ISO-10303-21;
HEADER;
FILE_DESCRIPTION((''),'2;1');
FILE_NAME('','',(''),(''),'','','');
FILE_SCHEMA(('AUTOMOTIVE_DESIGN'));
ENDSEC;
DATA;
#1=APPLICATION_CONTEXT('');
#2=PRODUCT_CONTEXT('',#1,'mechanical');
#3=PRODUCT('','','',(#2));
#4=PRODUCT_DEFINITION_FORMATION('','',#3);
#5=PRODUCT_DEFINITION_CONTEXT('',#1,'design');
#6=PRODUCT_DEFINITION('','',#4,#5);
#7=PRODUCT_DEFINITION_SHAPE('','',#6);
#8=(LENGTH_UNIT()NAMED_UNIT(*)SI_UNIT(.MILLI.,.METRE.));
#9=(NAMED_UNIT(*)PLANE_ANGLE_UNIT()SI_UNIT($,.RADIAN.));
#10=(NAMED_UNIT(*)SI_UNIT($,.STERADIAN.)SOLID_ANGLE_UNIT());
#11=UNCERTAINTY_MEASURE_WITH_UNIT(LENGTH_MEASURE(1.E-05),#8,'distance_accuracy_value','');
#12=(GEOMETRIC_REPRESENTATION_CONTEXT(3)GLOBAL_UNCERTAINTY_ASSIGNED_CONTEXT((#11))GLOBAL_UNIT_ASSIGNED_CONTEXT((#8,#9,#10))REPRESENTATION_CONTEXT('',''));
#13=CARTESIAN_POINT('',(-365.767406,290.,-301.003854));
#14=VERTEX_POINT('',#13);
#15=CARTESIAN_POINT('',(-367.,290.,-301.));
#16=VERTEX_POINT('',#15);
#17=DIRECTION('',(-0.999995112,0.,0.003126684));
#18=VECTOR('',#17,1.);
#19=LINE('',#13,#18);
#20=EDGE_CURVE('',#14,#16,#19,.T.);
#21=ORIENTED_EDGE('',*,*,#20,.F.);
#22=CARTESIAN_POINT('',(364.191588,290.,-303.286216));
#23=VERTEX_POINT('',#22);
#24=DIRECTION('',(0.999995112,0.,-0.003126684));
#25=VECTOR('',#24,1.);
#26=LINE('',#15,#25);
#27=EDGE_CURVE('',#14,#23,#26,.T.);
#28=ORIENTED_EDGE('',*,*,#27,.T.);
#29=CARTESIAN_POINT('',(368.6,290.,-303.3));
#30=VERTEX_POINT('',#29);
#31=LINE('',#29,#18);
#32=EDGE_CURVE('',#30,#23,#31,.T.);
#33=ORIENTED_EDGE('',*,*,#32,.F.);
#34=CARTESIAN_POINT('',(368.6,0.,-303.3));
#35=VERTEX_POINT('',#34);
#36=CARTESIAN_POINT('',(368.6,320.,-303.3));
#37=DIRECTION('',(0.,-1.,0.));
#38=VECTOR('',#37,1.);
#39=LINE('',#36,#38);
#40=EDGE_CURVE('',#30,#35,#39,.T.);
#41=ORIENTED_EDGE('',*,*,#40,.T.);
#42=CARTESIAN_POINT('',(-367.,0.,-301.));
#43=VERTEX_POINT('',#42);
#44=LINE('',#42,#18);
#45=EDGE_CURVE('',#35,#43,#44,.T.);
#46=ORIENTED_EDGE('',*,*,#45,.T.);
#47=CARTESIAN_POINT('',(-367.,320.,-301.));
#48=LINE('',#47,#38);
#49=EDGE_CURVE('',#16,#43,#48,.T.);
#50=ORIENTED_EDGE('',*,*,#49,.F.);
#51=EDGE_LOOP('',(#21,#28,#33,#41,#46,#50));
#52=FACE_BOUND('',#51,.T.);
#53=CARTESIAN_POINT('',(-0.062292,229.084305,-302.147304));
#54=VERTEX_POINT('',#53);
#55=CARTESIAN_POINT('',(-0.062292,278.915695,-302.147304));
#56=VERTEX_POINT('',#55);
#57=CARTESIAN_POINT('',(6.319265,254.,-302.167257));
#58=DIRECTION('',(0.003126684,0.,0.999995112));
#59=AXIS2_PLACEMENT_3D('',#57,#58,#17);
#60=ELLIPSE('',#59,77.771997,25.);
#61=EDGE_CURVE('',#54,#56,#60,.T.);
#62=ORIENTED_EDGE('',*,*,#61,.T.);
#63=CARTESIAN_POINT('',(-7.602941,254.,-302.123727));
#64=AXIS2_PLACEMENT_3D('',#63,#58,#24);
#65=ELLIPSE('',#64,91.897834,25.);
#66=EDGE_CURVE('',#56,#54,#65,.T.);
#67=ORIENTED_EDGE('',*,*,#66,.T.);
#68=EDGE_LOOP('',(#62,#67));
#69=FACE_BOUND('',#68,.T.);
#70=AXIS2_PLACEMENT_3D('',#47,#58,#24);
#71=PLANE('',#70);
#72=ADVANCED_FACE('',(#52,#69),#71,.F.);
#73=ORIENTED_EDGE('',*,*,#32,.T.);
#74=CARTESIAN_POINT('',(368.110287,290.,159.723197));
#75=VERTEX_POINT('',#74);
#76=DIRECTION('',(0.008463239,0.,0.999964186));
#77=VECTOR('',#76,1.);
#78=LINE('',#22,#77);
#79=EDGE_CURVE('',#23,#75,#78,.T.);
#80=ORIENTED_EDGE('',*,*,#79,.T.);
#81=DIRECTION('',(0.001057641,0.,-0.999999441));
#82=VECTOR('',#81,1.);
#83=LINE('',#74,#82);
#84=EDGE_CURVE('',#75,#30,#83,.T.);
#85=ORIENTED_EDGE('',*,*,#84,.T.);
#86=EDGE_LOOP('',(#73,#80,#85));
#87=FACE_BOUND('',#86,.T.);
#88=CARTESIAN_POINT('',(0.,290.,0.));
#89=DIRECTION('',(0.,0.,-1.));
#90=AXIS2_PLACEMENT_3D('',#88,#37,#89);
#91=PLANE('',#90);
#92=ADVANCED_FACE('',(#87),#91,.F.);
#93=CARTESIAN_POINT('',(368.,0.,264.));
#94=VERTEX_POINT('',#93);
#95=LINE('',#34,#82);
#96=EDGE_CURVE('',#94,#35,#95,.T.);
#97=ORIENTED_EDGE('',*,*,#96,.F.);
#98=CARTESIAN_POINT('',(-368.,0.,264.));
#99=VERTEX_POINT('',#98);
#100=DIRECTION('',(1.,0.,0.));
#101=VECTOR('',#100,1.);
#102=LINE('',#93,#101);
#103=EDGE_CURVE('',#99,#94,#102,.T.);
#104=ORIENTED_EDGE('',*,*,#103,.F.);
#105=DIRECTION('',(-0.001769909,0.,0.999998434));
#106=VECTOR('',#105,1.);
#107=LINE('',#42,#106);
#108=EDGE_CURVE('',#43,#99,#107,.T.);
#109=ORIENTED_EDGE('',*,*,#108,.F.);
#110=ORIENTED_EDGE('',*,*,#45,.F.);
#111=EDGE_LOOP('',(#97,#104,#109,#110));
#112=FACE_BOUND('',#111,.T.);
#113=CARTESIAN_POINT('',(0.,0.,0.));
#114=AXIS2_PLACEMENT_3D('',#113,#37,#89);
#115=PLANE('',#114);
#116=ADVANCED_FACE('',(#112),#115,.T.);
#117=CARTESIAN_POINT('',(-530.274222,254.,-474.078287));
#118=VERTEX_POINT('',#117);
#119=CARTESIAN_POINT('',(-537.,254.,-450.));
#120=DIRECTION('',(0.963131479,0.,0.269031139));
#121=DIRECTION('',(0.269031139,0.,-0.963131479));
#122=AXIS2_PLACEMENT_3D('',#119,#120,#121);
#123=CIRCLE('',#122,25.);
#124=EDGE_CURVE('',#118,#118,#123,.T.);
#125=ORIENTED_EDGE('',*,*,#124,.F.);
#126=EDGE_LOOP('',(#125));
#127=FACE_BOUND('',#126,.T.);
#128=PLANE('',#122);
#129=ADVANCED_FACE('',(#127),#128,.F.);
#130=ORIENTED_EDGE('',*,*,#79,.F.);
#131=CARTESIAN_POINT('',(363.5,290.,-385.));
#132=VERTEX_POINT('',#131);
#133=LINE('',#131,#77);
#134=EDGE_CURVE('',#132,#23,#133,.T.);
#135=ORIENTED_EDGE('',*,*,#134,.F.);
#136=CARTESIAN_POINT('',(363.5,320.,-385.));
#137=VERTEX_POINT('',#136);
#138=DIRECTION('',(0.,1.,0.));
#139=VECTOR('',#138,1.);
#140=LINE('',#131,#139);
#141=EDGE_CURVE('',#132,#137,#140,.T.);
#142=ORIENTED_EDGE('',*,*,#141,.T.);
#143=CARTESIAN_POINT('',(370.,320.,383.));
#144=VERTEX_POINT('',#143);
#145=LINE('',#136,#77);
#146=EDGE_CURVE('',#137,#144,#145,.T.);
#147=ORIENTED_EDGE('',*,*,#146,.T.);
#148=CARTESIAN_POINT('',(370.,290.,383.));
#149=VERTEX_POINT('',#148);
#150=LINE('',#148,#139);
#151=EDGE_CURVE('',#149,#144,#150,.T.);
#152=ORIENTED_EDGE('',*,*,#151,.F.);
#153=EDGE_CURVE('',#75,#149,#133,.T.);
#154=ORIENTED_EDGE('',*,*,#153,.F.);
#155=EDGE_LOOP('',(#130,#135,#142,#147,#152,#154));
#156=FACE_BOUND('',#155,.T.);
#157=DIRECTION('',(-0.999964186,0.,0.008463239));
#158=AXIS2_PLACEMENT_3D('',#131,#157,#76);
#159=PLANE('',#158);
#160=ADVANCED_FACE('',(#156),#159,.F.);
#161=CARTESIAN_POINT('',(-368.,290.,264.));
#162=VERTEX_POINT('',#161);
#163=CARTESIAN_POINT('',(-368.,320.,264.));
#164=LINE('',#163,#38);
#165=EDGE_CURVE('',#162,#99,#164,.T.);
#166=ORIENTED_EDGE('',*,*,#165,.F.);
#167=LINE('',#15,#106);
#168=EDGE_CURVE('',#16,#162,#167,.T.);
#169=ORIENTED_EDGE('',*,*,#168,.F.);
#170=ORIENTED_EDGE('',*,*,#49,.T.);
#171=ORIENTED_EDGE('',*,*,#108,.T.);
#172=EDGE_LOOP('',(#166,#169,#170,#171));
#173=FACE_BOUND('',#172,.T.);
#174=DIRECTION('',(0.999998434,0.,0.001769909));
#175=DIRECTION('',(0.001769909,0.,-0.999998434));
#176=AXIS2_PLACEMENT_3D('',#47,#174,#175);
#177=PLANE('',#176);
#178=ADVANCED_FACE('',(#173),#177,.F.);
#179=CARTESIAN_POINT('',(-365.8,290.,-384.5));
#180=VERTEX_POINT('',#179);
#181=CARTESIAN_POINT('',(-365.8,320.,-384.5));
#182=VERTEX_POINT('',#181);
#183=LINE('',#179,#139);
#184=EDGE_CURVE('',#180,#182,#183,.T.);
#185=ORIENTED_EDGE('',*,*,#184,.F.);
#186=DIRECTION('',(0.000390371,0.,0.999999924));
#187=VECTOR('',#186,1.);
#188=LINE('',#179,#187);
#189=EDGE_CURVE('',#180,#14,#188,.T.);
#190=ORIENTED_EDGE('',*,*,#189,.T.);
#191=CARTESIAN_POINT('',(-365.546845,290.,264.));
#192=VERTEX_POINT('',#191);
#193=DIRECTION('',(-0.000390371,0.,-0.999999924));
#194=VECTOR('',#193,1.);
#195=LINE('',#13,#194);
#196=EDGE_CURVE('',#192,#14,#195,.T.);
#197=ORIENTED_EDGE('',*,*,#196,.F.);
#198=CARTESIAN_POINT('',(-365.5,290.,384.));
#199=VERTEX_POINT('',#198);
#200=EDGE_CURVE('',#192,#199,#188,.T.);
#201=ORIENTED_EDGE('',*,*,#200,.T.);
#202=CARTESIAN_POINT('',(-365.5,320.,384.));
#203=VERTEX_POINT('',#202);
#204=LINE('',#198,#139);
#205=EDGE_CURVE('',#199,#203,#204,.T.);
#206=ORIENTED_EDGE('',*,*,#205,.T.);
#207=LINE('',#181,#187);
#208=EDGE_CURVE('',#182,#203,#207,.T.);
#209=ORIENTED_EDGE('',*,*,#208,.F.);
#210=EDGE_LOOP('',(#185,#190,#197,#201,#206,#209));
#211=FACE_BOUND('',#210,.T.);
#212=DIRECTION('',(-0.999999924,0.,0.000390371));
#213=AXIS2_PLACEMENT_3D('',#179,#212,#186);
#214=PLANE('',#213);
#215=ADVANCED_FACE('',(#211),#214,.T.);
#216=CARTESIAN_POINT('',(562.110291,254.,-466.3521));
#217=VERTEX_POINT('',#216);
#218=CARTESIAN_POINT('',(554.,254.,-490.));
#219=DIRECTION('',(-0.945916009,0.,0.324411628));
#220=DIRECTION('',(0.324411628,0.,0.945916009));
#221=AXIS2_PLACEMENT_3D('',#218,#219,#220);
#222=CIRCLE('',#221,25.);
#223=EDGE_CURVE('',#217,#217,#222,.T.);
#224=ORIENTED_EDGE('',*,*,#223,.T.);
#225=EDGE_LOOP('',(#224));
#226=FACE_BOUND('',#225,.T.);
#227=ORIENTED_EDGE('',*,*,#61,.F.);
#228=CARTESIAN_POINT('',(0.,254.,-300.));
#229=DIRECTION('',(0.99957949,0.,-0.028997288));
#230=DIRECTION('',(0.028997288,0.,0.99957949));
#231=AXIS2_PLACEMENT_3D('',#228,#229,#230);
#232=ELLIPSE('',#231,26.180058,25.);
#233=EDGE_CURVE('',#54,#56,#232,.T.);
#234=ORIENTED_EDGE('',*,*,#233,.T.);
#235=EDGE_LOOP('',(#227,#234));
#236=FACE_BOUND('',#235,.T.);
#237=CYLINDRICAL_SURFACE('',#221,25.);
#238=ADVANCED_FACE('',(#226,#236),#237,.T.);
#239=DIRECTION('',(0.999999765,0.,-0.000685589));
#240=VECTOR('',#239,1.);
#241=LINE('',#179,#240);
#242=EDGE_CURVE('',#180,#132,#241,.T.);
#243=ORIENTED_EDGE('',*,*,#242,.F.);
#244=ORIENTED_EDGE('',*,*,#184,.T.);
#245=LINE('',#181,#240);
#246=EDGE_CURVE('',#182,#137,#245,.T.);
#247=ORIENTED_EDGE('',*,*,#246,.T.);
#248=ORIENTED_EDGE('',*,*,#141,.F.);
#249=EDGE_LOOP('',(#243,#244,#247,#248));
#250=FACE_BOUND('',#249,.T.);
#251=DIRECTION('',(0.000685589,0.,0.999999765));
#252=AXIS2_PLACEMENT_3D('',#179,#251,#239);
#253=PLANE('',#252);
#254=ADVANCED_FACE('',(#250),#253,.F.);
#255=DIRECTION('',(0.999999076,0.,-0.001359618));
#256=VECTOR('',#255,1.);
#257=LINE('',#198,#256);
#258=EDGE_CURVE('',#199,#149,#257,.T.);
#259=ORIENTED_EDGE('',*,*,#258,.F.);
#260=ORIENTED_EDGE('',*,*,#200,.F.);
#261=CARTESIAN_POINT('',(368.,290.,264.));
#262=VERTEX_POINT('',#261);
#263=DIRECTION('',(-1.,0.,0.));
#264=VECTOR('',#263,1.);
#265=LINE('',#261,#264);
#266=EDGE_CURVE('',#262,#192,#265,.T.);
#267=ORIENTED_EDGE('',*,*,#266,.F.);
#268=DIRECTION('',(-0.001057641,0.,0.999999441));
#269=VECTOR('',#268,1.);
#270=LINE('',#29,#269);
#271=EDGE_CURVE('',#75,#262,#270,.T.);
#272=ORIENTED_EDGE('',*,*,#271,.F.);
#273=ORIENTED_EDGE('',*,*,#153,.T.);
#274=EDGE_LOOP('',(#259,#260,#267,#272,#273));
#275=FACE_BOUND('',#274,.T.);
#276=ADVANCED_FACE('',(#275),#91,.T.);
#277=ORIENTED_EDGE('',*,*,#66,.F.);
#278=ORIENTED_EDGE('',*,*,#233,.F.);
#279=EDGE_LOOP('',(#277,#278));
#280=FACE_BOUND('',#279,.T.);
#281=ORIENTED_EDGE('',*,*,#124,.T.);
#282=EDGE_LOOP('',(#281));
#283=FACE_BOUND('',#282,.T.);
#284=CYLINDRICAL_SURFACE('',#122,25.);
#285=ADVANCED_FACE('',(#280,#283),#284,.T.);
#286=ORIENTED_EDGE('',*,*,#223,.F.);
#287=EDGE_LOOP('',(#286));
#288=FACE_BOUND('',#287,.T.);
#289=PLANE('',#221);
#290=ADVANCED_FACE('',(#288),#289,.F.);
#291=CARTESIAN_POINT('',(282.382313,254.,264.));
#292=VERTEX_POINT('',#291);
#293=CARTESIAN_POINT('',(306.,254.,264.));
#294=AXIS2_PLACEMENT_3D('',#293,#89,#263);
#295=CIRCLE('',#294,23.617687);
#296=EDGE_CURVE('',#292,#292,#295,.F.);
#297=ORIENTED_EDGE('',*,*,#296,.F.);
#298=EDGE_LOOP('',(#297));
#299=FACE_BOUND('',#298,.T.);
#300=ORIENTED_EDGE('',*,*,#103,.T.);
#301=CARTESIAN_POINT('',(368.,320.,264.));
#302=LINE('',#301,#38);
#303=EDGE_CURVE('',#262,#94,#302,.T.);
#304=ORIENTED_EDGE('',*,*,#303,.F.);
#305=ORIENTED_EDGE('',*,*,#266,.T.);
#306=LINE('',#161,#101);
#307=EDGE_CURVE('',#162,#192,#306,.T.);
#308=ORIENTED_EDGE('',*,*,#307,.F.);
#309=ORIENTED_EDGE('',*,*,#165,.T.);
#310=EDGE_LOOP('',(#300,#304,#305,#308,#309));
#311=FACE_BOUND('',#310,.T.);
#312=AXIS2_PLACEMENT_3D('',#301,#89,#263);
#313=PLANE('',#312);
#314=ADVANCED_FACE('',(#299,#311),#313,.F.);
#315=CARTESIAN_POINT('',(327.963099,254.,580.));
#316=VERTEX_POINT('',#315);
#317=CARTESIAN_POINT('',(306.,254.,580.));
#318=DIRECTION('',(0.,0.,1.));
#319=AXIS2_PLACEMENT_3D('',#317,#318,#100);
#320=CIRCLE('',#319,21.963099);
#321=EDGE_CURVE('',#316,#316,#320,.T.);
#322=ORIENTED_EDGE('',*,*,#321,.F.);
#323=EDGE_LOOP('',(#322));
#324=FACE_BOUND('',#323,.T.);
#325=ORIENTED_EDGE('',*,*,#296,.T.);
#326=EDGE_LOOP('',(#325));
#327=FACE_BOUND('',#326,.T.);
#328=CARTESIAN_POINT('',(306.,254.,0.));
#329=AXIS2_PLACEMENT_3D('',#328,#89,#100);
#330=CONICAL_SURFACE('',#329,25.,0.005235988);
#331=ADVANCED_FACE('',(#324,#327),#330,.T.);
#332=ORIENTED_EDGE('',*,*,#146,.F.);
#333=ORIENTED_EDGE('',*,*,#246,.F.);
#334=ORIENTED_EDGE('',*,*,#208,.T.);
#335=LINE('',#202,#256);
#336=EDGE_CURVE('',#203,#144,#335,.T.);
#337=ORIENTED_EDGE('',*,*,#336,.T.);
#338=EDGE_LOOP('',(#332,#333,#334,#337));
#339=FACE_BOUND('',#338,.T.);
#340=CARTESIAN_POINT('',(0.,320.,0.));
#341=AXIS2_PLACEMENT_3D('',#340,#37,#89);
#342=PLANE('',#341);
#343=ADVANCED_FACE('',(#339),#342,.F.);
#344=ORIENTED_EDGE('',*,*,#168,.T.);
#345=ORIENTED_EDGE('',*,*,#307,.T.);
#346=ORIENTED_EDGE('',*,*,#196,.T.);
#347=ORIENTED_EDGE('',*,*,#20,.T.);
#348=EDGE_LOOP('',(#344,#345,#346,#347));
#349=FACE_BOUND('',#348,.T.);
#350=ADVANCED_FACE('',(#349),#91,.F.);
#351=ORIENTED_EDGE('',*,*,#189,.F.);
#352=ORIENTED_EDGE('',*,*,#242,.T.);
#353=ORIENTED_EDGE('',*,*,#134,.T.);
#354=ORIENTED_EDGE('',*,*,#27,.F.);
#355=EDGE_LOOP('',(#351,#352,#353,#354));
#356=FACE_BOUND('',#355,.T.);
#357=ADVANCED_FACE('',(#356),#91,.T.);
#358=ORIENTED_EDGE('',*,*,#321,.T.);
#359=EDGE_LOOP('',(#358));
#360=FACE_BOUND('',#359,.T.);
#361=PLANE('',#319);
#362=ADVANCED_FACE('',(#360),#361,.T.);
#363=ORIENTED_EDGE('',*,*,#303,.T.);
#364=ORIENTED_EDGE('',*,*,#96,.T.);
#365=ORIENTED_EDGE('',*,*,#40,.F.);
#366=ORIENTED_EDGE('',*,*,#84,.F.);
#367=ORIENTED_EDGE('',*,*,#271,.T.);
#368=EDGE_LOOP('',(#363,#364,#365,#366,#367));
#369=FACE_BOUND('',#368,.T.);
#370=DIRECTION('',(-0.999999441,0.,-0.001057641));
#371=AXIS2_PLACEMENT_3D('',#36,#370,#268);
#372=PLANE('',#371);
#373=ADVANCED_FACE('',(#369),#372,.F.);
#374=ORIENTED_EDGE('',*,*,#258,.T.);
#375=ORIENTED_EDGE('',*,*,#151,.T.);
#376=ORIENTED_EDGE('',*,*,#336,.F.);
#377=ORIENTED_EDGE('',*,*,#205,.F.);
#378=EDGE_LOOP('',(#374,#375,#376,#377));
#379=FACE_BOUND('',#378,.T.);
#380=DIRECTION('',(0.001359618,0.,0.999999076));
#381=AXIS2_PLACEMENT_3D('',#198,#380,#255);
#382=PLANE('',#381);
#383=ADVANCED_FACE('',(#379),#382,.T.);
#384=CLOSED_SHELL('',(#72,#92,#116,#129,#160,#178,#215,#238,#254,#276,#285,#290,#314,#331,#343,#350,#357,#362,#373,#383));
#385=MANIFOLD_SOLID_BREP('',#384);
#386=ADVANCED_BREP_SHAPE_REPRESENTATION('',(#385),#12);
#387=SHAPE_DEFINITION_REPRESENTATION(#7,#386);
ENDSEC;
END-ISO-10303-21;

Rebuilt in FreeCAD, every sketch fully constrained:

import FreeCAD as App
import Part
import Sketcher
from FreeCAD import Vector
Q = App.Units.Quantity

doc = App.newDocument("Part")
body = doc.addObject("PartDesign::Body", "Body")

sketch1 = body.newObject("Sketcher::SketchObject", "Sketch")
sketch1.AttachmentSupport = (doc.getObject("XZ_Plane"), [""])
sketch1.MapMode = "FlatFace"
sketch1.addGeometry(Part.LineSegment(Vector(-368, 264, 0), Vector(368, 264, 0)), False)
sketch1.addGeometry(Part.LineSegment(Vector(368, 264, 0), Vector(369, -303, 0)), False)
sketch1.addGeometry(Part.LineSegment(Vector(369, -303, 0), Vector(-367, -301, 0)), False)
sketch1.addGeometry(Part.LineSegment(Vector(-367, -301, 0), Vector(-368, 264, 0)), False)
sketch1.addConstraint(Sketcher.Constraint("Coincident", 0, 2, 1, 1))
sketch1.addConstraint(Sketcher.Constraint("Coincident", 1, 2, 2, 1))
sketch1.addConstraint(Sketcher.Constraint("Coincident", 2, 2, 3, 1))
sketch1.addConstraint(Sketcher.Constraint("Coincident", 3, 2, 0, 1))
sketch1.addConstraint(Sketcher.Constraint("Horizontal", 0))
sketch1.addConstraint(Sketcher.Constraint("DistanceX", 0, 1, 0, 2, Q("736 mm")))
sketch1.addConstraint(Sketcher.Constraint("DistanceX", -1, 1, 0, 2, Q("368 mm")))
sketch1.addConstraint(Sketcher.Constraint("DistanceY", -1, 1, 0, 2, Q("264 mm")))
sketch1.addConstraint(Sketcher.Constraint("DistanceX", 2, 2, -1, 1, Q("367 mm")))
sketch1.addConstraint(Sketcher.Constraint("DistanceY", 2, 2, -1, 1, Q("301 mm")))
sketch1.addConstraint(Sketcher.Constraint("DistanceX", -1, 1, 1, 2, Q("368.6 mm")))
sketch1.addConstraint(Sketcher.Constraint("DistanceY", 1, 2, -1, 1, Q("303.3 mm")))
pad1 = body.newObject("PartDesign::Pad", "Pad")
pad1.Profile = sketch1
pad1.Length = 320
pad1.Reversed = True

sketch2 = body.newObject("Sketcher::SketchObject", "Sketch001")
sketch2.AttachmentSupport = (doc.getObject("XZ_Plane"), [""])
sketch2.MapMode = "FlatFace"
sketch2.AttachmentOffset = App.Placement(Vector(0, 0, -320), App.Rotation())
sketch2.addGeometry(Part.LineSegment(Vector(370, 383, 0), Vector(364, -385, 0)), False)
sketch2.addGeometry(Part.LineSegment(Vector(364, -385, 0), Vector(-366, -384, 0)), False)
sketch2.addGeometry(Part.LineSegment(Vector(-366, -384, 0), Vector(-366, 384, 0)), False)
sketch2.addGeometry(Part.LineSegment(Vector(-366, 384, 0), Vector(370, 383, 0)), False)
sketch2.addConstraint(Sketcher.Constraint("Coincident", 0, 2, 1, 1))
sketch2.addConstraint(Sketcher.Constraint("Coincident", 1, 2, 2, 1))
sketch2.addConstraint(Sketcher.Constraint("Coincident", 2, 2, 3, 1))
sketch2.addConstraint(Sketcher.Constraint("Coincident", 3, 2, 0, 1))
sketch2.addConstraint(Sketcher.Constraint("DistanceY", 0, 2, -1, 1, Q("385 mm")))
sketch2.addConstraint(Sketcher.Constraint("DistanceY", -1, 1, 2, 2, Q("384 mm")))
sketch2.addConstraint(Sketcher.Constraint("DistanceX", -1, 1, 3, 2, Q("370 mm")))
sketch2.addConstraint(Sketcher.Constraint("DistanceY", -1, 1, 3, 2, Q("383 mm")))
sketch2.addConstraint(Sketcher.Constraint("DistanceX", 2, 2, 0, 2, Q("729 mm")))
sketch2.addConstraint(Sketcher.Constraint("DistanceX", -1, 1, 0, 2, Q("363.5 mm")))
sketch2.addConstraint(Sketcher.Constraint("DistanceX", 1, 2, -1, 1, Q("365.8 mm")))
sketch2.addConstraint(Sketcher.Constraint("DistanceY", 1, 2, -1, 1, Q("384.5 mm")))
pad2 = body.newObject("PartDesign::Pad", "Pad001")
pad2.Profile = sketch2
pad2.Length = 30

sketch3 = body.newObject("Sketcher::SketchObject", "Sketch002")
sketch3.AttachmentSupport = (doc.getObject("XZ_Plane"), [""])
sketch3.MapMode = "FlatFace"
sketch3.AttachmentOffset = App.Placement(Vector(0, 0, -320), App.Rotation())
sketch3.addGeometry(Part.LineSegment(Vector(364.2, -303.3, 0), Vector(368.1, 159.7, 0)), False)
sketch3.addGeometry(Part.LineSegment(Vector(368.1, 159.7, 0), Vector(368.6, -303.3, 0)), False)
sketch3.addGeometry(Part.LineSegment(Vector(368.6, -303.3, 0), Vector(364.2, -303.3, 0)), False)
sketch3.addGeometry(Part.LineSegment(Vector(-365.5, 264, 0), Vector(-365.8, -301, 0)), False)
sketch3.addGeometry(Part.LineSegment(Vector(-365.8, -301, 0), Vector(-367, -301, 0)), False)
sketch3.addGeometry(Part.LineSegment(Vector(-367, -301, 0), Vector(-368, 264, 0)), False)
sketch3.addGeometry(Part.LineSegment(Vector(-368, 264, 0), Vector(-365.5, 264, 0)), False)
sketch3.addConstraint(Sketcher.Constraint("Coincident", 0, 2, 1, 1))
sketch3.addConstraint(Sketcher.Constraint("Coincident", 1, 2, 2, 1))
sketch3.addConstraint(Sketcher.Constraint("Coincident", 2, 2, 0, 1))
sketch3.addConstraint(Sketcher.Constraint("Coincident", 3, 2, 4, 1))
sketch3.addConstraint(Sketcher.Constraint("Coincident", 4, 2, 5, 1))
sketch3.addConstraint(Sketcher.Constraint("Coincident", 5, 2, 6, 1))
sketch3.addConstraint(Sketcher.Constraint("Coincident", 6, 2, 3, 1))
sketch3.addConstraint(Sketcher.Constraint("Horizontal", 6))
sketch3.addConstraint(Sketcher.Constraint("Parallel", 2, 4))
sketch3.addConstraint(Sketcher.Constraint("DistanceX", 4, 2, -1, 1, Q("367 mm")))
sketch3.addConstraint(Sketcher.Constraint("DistanceY", 4, 2, -1, 1, Q("301 mm")))
sketch3.addConstraint(Sketcher.Constraint("DistanceX", 5, 2, -1, 1, Q("368 mm")))
sketch3.addConstraint(Sketcher.Constraint("DistanceY", -1, 1, 5, 2, Q("264 mm")))
sketch3.addConstraint(Sketcher.Constraint("DistanceX", -1, 1, 1, 2, Q("368.6 mm")))
sketch3.addConstraint(Sketcher.Constraint("DistanceY", 1, 2, -1, 1, Q("303.3 mm")))
sketch3.addConstraint(Sketcher.Constraint("Distance", 4, Q("1.2326 mm")))
sketch3.addConstraint(Sketcher.Constraint("DistanceX", 2, 2, 0, 2, Q("3.918699 mm")))
sketch3.addConstraint(Sketcher.Constraint("DistanceX", 6, 1, 6, 2, Q("2.453155 mm")))
sketch3.addConstraint(Sketcher.Constraint("DistanceX", -1, 1, 2, 2, Q("364.191588 mm")))
sketch3.addConstraint(Sketcher.Constraint("DistanceY", 3, 2, 0, 2, Q("460.72705 mm")))
sketch3.addConstraint(Sketcher.Constraint("Distance", 0, Q("463.025995 mm")))
pocket1 = body.newObject("PartDesign::Pocket", "Pocket")
pocket1.Profile = sketch3
pocket1.Length = 30
pocket1.Reversed = True

sketch4 = body.newObject("Sketcher::SketchObject", "Sketch003")
sketch4.AttachmentSupport = (doc.getObject("XY_Plane"), [""])
sketch4.MapMode = "FlatFace"
sketch4.addGeometry(Part.Circle(Vector(306, 254, 0), Vector(0, 0, 1), 25), False)
sketch4.addConstraint(Sketcher.Constraint("Diameter", 0, Q("50 mm")))
sketch4.addConstraint(Sketcher.Constraint("DistanceX", -1, 1, 0, 3, Q("306 mm")))
sketch4.addConstraint(Sketcher.Constraint("DistanceY", -1, 1, 0, 3, Q("254 mm")))
pad3 = body.newObject("PartDesign::Pad", "Pad002")
pad3.Profile = sketch4
pad3.Length = 580
pad3.TaperAngle = -0.3

sketch5 = body.newObject("Sketcher::SketchObject", "Sketch004")
sketch5.Placement = App.Placement(Vector(0, 254, -300), App.Rotation(Vector(0.269031139, 0, -0.963131479), Vector(0, 1, 0), Vector(0.963131479, 0, 0.269031139), "ZXY"))
sketch5.addGeometry(Part.Circle(Vector(0, 0, 0), Vector(0, 0, 1), 25), False)
sketch5.addConstraint(Sketcher.Constraint("Coincident", 0, 3, -1, 1))
sketch5.addConstraint(Sketcher.Constraint("Diameter", 0, Q("50 mm")))
pad4 = body.newObject("PartDesign::Pad", "Pad003")
pad4.Profile = sketch5
pad4.Length = 557.556275
pad4.Reversed = True

sketch6 = body.newObject("Sketcher::SketchObject", "Sketch005")
sketch6.Placement = App.Placement(Vector(0, 254, -300), App.Rotation(Vector(0.324411628, 0, 0.945916009), Vector(0, 1, 0), Vector(-0.945916009, 0, 0.324411628), "ZXY"))
sketch6.addGeometry(Part.Circle(Vector(0, 0, 0), Vector(0, 0, 1), 25), False)
sketch6.addConstraint(Sketcher.Constraint("Coincident", 0, 3, -1, 1))
sketch6.addConstraint(Sketcher.Constraint("Diameter", 0, Q("50 mm")))
pad5 = body.newObject("PartDesign::Pad", "Pad004")
pad5.Profile = sketch6
pad5.Length = 585.675678
pad5.Reversed = True

doc.recompute()
